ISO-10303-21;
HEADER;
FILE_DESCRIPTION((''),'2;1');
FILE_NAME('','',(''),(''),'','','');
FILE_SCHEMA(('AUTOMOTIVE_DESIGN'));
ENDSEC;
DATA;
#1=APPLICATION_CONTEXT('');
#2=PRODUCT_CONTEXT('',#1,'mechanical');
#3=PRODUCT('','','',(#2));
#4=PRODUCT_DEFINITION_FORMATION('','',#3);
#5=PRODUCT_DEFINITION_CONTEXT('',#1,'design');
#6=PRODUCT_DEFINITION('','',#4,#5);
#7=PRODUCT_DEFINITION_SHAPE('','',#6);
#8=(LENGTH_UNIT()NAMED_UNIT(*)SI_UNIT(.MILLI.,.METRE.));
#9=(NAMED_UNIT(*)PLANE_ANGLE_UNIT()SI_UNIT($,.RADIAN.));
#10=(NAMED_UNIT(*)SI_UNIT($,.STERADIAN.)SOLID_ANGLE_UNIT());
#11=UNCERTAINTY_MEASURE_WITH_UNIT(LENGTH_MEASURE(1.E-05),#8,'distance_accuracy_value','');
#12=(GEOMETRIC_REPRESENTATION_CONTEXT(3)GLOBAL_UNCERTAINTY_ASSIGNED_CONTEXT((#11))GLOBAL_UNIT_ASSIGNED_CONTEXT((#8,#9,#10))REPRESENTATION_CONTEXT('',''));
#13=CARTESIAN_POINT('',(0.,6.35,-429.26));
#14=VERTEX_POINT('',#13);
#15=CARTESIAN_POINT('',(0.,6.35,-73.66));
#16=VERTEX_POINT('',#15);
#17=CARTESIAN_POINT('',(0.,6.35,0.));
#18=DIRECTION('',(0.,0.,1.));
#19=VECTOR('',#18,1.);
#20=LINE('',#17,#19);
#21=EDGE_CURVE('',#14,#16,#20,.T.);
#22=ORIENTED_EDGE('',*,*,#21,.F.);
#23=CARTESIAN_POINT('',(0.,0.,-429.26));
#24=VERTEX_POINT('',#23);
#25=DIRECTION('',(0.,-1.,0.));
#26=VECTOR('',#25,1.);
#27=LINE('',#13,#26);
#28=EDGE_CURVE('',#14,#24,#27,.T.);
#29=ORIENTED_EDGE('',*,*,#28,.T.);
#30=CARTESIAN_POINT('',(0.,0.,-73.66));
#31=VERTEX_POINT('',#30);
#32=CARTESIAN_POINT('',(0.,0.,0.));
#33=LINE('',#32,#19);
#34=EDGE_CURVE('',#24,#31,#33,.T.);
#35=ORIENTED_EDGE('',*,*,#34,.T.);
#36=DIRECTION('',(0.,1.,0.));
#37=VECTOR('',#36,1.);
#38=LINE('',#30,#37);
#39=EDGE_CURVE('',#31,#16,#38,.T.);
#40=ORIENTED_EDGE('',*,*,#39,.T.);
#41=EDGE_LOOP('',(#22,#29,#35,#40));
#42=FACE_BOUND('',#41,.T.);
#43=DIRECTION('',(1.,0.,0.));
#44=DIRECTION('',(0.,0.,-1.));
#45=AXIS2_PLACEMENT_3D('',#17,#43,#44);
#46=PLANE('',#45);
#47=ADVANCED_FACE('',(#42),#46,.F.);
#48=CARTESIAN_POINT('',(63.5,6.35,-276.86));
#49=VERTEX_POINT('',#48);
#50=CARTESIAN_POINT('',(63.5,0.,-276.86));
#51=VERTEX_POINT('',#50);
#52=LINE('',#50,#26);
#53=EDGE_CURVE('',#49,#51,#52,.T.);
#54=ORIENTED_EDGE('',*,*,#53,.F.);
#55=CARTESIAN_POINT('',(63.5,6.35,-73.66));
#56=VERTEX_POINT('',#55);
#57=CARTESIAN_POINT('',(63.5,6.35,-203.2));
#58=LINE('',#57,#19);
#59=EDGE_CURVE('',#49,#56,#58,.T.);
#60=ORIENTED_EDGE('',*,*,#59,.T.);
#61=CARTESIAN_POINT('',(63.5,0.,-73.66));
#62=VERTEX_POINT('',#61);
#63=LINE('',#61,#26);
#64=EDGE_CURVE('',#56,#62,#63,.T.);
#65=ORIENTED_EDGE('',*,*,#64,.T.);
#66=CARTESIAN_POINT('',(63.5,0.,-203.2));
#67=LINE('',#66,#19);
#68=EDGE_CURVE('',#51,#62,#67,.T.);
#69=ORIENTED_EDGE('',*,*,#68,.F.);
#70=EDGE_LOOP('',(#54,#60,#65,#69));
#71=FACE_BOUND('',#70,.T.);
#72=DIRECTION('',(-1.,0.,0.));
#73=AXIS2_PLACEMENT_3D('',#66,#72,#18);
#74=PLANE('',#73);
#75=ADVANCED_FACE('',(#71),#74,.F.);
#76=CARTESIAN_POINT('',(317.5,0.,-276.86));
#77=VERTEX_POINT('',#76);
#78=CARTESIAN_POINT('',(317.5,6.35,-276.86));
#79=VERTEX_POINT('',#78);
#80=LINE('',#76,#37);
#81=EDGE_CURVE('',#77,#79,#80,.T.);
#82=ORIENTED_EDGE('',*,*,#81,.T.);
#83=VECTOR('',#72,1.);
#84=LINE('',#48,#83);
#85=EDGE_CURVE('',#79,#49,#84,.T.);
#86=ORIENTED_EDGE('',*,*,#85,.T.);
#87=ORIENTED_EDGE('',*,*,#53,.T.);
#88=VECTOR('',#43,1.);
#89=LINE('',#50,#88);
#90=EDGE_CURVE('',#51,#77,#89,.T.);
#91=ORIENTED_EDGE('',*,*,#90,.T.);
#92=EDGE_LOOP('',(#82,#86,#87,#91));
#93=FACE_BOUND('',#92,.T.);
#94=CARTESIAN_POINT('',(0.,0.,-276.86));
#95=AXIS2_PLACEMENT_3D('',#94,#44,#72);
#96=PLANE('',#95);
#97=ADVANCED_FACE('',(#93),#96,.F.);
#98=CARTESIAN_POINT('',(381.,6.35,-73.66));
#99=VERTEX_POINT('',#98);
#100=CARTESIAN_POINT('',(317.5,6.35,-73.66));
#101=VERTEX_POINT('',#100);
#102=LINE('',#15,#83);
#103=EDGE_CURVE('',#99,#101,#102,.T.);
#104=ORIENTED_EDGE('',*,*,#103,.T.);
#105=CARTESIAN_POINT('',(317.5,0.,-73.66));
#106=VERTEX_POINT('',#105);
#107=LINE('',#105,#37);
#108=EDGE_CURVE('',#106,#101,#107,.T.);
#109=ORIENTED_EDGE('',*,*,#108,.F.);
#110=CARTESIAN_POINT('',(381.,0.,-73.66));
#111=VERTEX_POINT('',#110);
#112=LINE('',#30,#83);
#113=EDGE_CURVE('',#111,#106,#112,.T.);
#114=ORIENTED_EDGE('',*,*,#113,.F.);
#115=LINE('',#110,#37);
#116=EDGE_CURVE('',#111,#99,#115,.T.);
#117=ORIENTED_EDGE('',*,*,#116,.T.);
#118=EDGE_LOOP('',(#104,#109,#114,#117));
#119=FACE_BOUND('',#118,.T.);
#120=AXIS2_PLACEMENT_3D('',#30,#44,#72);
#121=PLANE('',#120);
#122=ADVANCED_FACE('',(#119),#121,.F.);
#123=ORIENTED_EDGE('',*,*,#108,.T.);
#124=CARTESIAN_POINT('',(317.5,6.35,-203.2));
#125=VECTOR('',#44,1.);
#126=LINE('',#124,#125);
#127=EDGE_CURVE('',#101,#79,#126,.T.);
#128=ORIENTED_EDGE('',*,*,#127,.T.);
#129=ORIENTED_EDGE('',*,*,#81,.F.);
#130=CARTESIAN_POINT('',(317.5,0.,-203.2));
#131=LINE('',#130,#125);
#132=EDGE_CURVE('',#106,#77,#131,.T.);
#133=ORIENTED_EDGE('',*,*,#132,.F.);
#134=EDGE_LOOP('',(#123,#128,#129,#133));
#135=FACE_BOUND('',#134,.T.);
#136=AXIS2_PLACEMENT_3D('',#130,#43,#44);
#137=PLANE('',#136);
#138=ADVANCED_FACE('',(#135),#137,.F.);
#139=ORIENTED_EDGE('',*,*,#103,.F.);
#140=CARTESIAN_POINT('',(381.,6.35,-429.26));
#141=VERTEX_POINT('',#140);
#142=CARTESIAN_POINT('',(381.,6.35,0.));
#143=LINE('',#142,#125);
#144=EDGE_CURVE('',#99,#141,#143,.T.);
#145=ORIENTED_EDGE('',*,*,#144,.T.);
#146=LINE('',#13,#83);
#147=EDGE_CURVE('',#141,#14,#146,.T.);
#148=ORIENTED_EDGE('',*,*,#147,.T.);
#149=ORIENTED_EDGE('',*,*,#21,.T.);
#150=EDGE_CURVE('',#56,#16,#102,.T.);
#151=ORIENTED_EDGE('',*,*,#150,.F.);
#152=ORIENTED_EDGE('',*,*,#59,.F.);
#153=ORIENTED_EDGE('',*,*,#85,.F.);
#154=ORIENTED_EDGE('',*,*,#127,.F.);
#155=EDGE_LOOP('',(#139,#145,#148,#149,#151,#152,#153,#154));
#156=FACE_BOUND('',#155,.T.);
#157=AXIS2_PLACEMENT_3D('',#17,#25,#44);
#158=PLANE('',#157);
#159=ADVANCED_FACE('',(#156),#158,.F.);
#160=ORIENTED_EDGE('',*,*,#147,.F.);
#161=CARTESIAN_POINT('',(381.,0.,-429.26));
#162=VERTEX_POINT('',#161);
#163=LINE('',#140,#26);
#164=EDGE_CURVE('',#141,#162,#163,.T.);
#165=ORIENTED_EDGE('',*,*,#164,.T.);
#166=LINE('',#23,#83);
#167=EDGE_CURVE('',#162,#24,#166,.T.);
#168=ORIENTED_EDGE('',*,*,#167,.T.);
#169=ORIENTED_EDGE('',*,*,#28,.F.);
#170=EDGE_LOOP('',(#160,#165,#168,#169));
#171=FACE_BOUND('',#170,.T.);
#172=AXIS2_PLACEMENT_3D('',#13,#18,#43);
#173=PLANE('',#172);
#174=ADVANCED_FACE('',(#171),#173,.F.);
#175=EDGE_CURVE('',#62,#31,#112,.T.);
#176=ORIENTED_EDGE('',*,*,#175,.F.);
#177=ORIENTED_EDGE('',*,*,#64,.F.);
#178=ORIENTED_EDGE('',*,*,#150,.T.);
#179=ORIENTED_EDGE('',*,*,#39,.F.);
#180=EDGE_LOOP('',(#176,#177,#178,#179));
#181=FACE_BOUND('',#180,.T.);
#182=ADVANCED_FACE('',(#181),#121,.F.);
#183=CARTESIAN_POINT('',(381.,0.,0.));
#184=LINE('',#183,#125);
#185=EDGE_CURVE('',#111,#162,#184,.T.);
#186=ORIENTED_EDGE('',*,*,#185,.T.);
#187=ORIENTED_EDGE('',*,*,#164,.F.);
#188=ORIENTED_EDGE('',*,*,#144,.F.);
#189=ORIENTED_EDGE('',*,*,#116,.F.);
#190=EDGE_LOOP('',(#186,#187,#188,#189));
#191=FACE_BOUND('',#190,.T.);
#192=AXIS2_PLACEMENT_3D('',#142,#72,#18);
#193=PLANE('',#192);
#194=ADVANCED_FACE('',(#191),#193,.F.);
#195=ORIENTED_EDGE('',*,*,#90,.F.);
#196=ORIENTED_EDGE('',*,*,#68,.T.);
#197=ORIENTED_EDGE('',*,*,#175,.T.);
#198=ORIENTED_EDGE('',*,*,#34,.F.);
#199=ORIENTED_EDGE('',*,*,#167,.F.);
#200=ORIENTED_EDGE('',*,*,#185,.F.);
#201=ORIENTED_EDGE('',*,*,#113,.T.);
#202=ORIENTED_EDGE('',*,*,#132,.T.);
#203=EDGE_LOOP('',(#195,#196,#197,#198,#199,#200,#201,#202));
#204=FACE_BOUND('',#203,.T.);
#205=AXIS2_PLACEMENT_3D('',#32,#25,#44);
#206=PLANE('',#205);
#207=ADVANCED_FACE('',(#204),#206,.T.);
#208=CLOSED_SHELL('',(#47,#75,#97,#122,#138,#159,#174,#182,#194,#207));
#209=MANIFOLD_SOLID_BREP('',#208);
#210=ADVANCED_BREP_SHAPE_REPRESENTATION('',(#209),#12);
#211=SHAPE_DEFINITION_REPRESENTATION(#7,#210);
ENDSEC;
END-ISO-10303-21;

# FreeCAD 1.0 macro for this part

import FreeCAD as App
import Part
import Sketcher

V = App.Vector
Q = App.Units.Quantity

doc = App.newDocument("Part")
body = doc.addObject("PartDesign::Body", "Body")

sketch1 = body.newObject("Sketcher::SketchObject", "Sketch")
sketch1.AttachmentSupport = (doc.getObject("XZ_Plane"), [""])
sketch1.MapMode = "FlatFace"
sketch1.addGeometry([
    Part.LineSegment(V(0, -429, 0), V(0, 0, 0)),
    Part.LineSegment(V(0, 0, 0), V(381, 0, 0)),
    Part.LineSegment(V(381, 0, 0), V(381, -429, 0)),
    Part.LineSegment(V(381, -429, 0), V(0, -429, 0)),
], False)
sketch1.addConstraint([
    Sketcher.Constraint("Coincident", 0, 2, 1, 1),
    Sketcher.Constraint("Coincident", 1, 2, 2, 1),
    Sketcher.Constraint("Coincident", 2, 2, 3, 1),
    Sketcher.Constraint("Coincident", 3, 2, 0, 1),
    Sketcher.Constraint("Vertical", 0),
    Sketcher.Constraint("Horizontal", 1),
    Sketcher.Constraint("Vertical", 2),
    Sketcher.Constraint("Horizontal", 3),
    Sketcher.Constraint("Coincident", 0, 2, -1, 1),
    Sketcher.Constraint("DistanceX", 1, 1, 1, 2, Q("15 in")),
    Sketcher.Constraint("DistanceY", 0, 1, 0, 2, Q("16.9 in")),
])
pad1 = body.newObject("PartDesign::Pad", "Pad")
pad1.Profile = sketch1
pad1.Length = Q("0.25 in")
pad1.Reversed = True

sketch2 = body.newObject("Sketcher::SketchObject", "Sketch001")
sketch2.AttachmentSupport = (doc.getObject("XZ_Plane"), [""])
sketch2.MapMode = "FlatFace"
sketch2.AttachmentOffset = App.Placement(V(0, 0, -0.25 * 25.4), App.Rotation())
sketch2.addGeometry([
    Part.LineSegment(V(64, -203, 0), V(64, 0, 0)),
    Part.LineSegment(V(64, 0, 0), V(318, 0, 0)),
    Part.LineSegment(V(318, 0, 0), V(318, -203, 0)),
    Part.LineSegment(V(318, -203, 0), V(64, -203, 0)),
], False)
sketch2.addConstraint([
    Sketcher.Constraint("Coincident", 0, 2, 1, 1),
    Sketcher.Constraint("Coincident", 1, 2, 2, 1),
    Sketcher.Constraint("Coincident", 2, 2, 3, 1),
    Sketcher.Constraint("Coincident", 3, 2, 0, 1),
    Sketcher.Constraint("Vertical", 0),
    Sketcher.Constraint("Horizontal", 1),
    Sketcher.Constraint("Vertical", 2),
    Sketcher.Constraint("Horizontal", 3),
    Sketcher.Constraint("PointOnObject", 0, 2, -1),
    Sketcher.Constraint("DistanceX", 1, 1, 1, 2, Q("10 in")),
    Sketcher.Constraint("DistanceY", 0, 1, 0, 2, Q("8 in")),
    Sketcher.Constraint("DistanceX", -1, 1, 0, 2, Q("2.5 in")),
])
pocket1 = body.newObject("PartDesign::Pocket", "Pocket")
pocket1.Profile = sketch2
pocket1.Length = Q("0.25 in")
pocket1.Reversed = True

sketch3 = body.newObject("Sketcher::SketchObject", "Sketch002")
sketch3.AttachmentSupport = (doc.getObject("XZ_Plane"), [""])
sketch3.MapMode = "FlatFace"
sketch3.AttachmentOffset = App.Placement(V(0, 0, -0.25 * 25.4), App.Rotation())
sketch3.addGeometry([
    Part.LineSegment(V(0, -74, 0), V(0, 0, 0)),
    Part.LineSegment(V(0, 0, 0), V(381, 0, 0)),
    Part.LineSegment(V(381, 0, 0), V(381, -74, 0)),
    Part.LineSegment(V(381, -74, 0), V(0, -74, 0)),
], False)
sketch3.addConstraint([
    Sketcher.Constraint("Coincident", 0, 2, 1, 1),
    Sketcher.Constraint("Coincident", 1, 2, 2, 1),
    Sketcher.Constraint("Coincident", 2, 2, 3, 1),
    Sketcher.Constraint("Coincident", 3, 2, 0, 1),
    Sketcher.Constraint("Vertical", 0),
    Sketcher.Constraint("Horizontal", 1),
    Sketcher.Constraint("Vertical", 2),
    Sketcher.Constraint("Horizontal", 3),
    Sketcher.Constraint("Coincident", 0, 2, -1, 1),
    Sketcher.Constraint("DistanceX", 1, 1, 1, 2, Q("15 in")),
    Sketcher.Constraint("DistanceY", 0, 1, 0, 2, Q("2.9 in")),
])
pocket2 = body.newObject("PartDesign::Pocket", "Pocket001")
pocket2.Profile = sketch3
pocket2.Length = Q("0.25 in")
pocket2.Reversed = True

sketch4 = body.newObject("Sketcher::SketchObject", "Sketch003")
sketch4.AttachmentSupport = (doc.getObject("XY_Plane"), [""])
sketch4.MapMode = "FlatFace"
sketch4.AttachmentOffset = App.Placement(V(0, 0, -8 * 25.4), App.Rotation())
sketch4.addGeometry([
    Part.LineSegment(V(64, 6, 0), V(64, 0, 0)),
    Part.LineSegment(V(64, 0, 0), V(318, 0, 0)),
    Part.LineSegment(V(318, 0, 0), V(318, 6, 0)),
    Part.LineSegment(V(318, 6, 0), V(64, 6, 0)),
], False)
sketch4.addConstraint([
    Sketcher.Constraint("Coincident", 0, 2, 1, 1),
    Sketcher.Constraint("Coincident", 1, 2, 2, 1),
    Sketcher.Constraint("Coincident", 2, 2, 3, 1),
    Sketcher.Constraint("Coincident", 3, 2, 0, 1),
    Sketcher.Constraint("Vertical", 0),
    Sketcher.Constraint("Horizontal", 1),
    Sketcher.Constraint("Vertical", 2),
    Sketcher.Constraint("Horizontal", 3),
    Sketcher.Constraint("PointOnObject", 0, 2, -1),
    Sketcher.Constraint("DistanceX", 1, 1, 1, 2, Q("10 in")),
    Sketcher.Constraint("DistanceY", 0, 2, 0, 1, Q("0.25 in")),
    Sketcher.Constraint("DistanceX", -1, 1, 0, 2, Q("2.5 in")),
])
pocket3 = body.newObject("PartDesign::Pocket", "Pocket002")
pocket3.Profile = sketch4
pocket3.Length = Q("2.9 in")

doc.recompute()
